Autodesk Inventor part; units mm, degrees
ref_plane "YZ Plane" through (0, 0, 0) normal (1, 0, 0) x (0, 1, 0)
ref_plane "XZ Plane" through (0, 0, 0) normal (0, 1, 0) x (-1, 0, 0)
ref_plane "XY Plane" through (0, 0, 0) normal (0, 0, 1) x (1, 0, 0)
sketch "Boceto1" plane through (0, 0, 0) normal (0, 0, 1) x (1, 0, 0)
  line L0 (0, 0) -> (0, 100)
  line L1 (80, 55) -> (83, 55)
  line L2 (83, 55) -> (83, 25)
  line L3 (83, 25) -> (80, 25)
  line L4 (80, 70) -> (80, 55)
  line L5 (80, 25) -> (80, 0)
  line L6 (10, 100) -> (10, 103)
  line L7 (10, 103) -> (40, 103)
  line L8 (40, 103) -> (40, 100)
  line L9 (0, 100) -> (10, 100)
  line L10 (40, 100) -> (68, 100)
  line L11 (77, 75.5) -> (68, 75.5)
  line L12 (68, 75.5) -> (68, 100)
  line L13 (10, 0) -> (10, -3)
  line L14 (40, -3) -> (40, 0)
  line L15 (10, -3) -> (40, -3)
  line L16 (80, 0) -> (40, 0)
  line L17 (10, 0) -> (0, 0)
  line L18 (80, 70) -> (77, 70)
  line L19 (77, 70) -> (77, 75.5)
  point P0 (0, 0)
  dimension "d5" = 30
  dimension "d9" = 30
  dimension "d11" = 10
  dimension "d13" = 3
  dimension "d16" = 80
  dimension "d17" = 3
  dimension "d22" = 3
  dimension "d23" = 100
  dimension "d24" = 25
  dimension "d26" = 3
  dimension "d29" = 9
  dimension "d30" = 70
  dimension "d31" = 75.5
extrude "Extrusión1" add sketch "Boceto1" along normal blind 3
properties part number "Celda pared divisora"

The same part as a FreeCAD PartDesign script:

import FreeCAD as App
import Part
import Sketcher

V = App.Vector
Q = App.Units.Quantity

doc = App.newDocument("Part")
params = doc.addObject("Spreadsheet::Sheet", "Params")
for row, (alias, value) in enumerate([
    ("sketch1_width", "10 mm"),
    ("sketch1_width2", "30 mm"),
    ("sketch1_width3", "3 mm"),
    ("sketch1_width4", "9 mm"),
    ("sketch1_height", "100 mm"),
    ("pad1_length", "3 mm"),
], start=1):
    params.set(f"A{row}", alias)
    params.set(f"B{row}", "=" + value)
    params.setAlias(f"B{row}", alias)

body = doc.addObject("PartDesign::Body", "Body")

sketch1 = body.newObject("Sketcher::SketchObject", "Sketch")
sketch1.AttachmentSupport = (doc.getObject("XY_Plane"), [""])
sketch1.MapMode = "FlatFace"
sketch1.addGeometry(Part.LineSegment(V(0, 100, 0), V(0, 0, 0)), False)
sketch1.addGeometry(Part.LineSegment(V(0, 0, 0), V(10, 0, 0)), False)
sketch1.addGeometry(Part.LineSegment(V(10, 0, 0), V(10, -3, 0)), False)
sketch1.addGeometry(Part.LineSegment(V(10, -3, 0), V(40, -3, 0)), False)
sketch1.addGeometry(Part.LineSegment(V(40, -3, 0), V(40, 0, 0)), False)
sketch1.addGeometry(Part.LineSegment(V(40, 0, 0), V(80, 0, 0)), False)
sketch1.addGeometry(Part.LineSegment(V(80, 0, 0), V(80, 25, 0)), False)
sketch1.addGeometry(Part.LineSegment(V(80, 25, 0), V(83, 25, 0)), False)
sketch1.addGeometry(Part.LineSegment(V(83, 25, 0), V(83, 55, 0)), False)
sketch1.addGeometry(Part.LineSegment(V(83, 55, 0), V(80, 55, 0)), False)
sketch1.addGeometry(Part.LineSegment(V(80, 55, 0), V(80, 70, 0)), False)
sketch1.addGeometry(Part.LineSegment(V(80, 70, 0), V(77, 70, 0)), False)
sketch1.addGeometry(Part.LineSegment(V(77, 70, 0), V(77, 75.5, 0)), False)
sketch1.addGeometry(Part.LineSegment(V(77, 75.5, 0), V(68, 75.5, 0)), False)
sketch1.addGeometry(Part.LineSegment(V(68, 75.5, 0), V(68, 100, 0)), False)
sketch1.addGeometry(Part.LineSegment(V(68, 100, 0), V(40, 100, 0)), False)
sketch1.addGeometry(Part.LineSegment(V(40, 100, 0), V(40, 103, 0)), False)
sketch1.addGeometry(Part.LineSegment(V(40, 103, 0), V(10, 103, 0)), False)
sketch1.addGeometry(Part.LineSegment(V(10, 103, 0), V(10, 100, 0)), False)
sketch1.addGeometry(Part.LineSegment(V(10, 100, 0), V(0, 100, 0)), False)
sketch1.addConstraint(Sketcher.Constraint("Coincident", 0, 2, 1, 1))
sketch1.addConstraint(Sketcher.Constraint("Coincident", 1, 2, 2, 1))
sketch1.addConstraint(Sketcher.Constraint("Coincident", 2, 2, 3, 1))
sketch1.addConstraint(Sketcher.Constraint("Coincident", 3, 2, 4, 1))
sketch1.addConstraint(Sketcher.Constraint("Coincident", 4, 2, 5, 1))
sketch1.addConstraint(Sketcher.Constraint("Coincident", 5, 2, 6, 1))
sketch1.addConstraint(Sketcher.Constraint("Coincident", 6, 2, 7, 1))
sketch1.addConstraint(Sketcher.Constraint("Coincident", 7, 2, 8, 1))
sketch1.addConstraint(Sketcher.Constraint("Coincident", 8, 2, 9, 1))
sketch1.addConstraint(Sketcher.Constraint("Coincident", 9, 2, 10, 1))
sketch1.addConstraint(Sketcher.Constraint("Coincident", 10, 2, 11, 1))
sketch1.addConstraint(Sketcher.Constraint("Coincident", 11, 2, 12, 1))
sketch1.addConstraint(Sketcher.Constraint("Coincident", 12, 2, 13, 1))
sketch1.addConstraint(Sketcher.Constraint("Coincident", 13, 2, 14, 1))
sketch1.addConstraint(Sketcher.Constraint("Coincident", 14, 2, 15, 1))
sketch1.addConstraint(Sketcher.Constraint("Coincident", 15, 2, 16, 1))
sketch1.addConstraint(Sketcher.Constraint("Coincident", 16, 2, 17, 1))
sketch1.addConstraint(Sketcher.Constraint("Coincident", 17, 2, 18, 1))
sketch1.addConstraint(Sketcher.Constraint("Coincident", 18, 2, 19, 1))
sketch1.addConstraint(Sketcher.Constraint("Coincident", 19, 2, 0, 1))
sketch1.addConstraint(Sketcher.Constraint("Vertical", 0))
sketch1.addConstraint(Sketcher.Constraint("Horizontal", 1))
sketch1.addConstraint(Sketcher.Constraint("Vertical", 2))
sketch1.addConstraint(Sketcher.Constraint("Horizontal", 3))
sketch1.addConstraint(Sketcher.Constraint("Vertical", 4))
sketch1.addConstraint(Sketcher.Constraint("Horizontal", 5))
sketch1.addConstraint(Sketcher.Constraint("Vertical", 6))
sketch1.addConstraint(Sketcher.Constraint("Horizontal", 7))
sketch1.addConstraint(Sketcher.Constraint("Vertical", 8))
sketch1.addConstraint(Sketcher.Constraint("Horizontal", 9))
sketch1.addConstraint(Sketcher.Constraint("Vertical", 10))
sketch1.addConstraint(Sketcher.Constraint("Horizontal", 11))
sketch1.addConstraint(Sketcher.Constraint("Vertical", 12))
sketch1.addConstraint(Sketcher.Constraint("Horizontal", 13))
sketch1.addConstraint(Sketcher.Constraint("Vertical", 14))
sketch1.addConstraint(Sketcher.Constraint("Horizontal", 15))
sketch1.addConstraint(Sketcher.Constraint("Vertical", 16))
sketch1.addConstraint(Sketcher.Constraint("Horizontal", 17))
sketch1.addConstraint(Sketcher.Constraint("Vertical", 18))
sketch1.addConstraint(Sketcher.Constraint("Horizontal", 19))
sketch1.addConstraint(Sketcher.Constraint("Coincident", 0, 2, -1, 1))
sketch1.addConstraint(Sketcher.Constraint("PointOnObject", 4, 2, -1))
sketch1.addConstraint(Sketcher.Constraint("Horizontal", 15, 2, 18, 2))
sketch1.addConstraint(Sketcher.Constraint("Vertical", 6, 2, 9, 2))
sketch1.addConstraint(Sketcher.Constraint("Vertical", 4, 2, 15, 2))
sketch1.addConstraint(Sketcher.Constraint("Vertical", 2, 2, 17, 2))
sketch1.addConstraint(Sketcher.Constraint("Equal", 9, 11))
sketch1.addConstraint(Sketcher.Constraint("Equal", 11, 2))
sketch1.addConstraint(Sketcher.Constraint("Equal", 17, 8))
sketch1.addConstraint(Sketcher.Constraint("Equal", 4, 16))
sketch1.addConstraint(Sketcher.Constraint("DistanceX", 1, 1, 1, 2, Q("10 mm")))
sketch1.addConstraint(Sketcher.Constraint("DistanceX", 3, 1, 3, 2, Q("30 mm")))
sketch1.addConstraint(Sketcher.Constraint("DistanceX", 7, 1, 7, 2, Q("3 mm")))
sketch1.addConstraint(Sketcher.Constraint("DistanceX", 13, 2, 13, 1, Q("9 mm")))
sketch1.addConstraint(Sketcher.Constraint("DistanceY", 0, 2, 0, 1, Q("100 mm")))
sketch1.addConstraint(Sketcher.Constraint("DistanceY", 6, 1, 6, 2, Q("25 mm")))
sketch1.addConstraint(Sketcher.Constraint("DistanceX", -1, 1, 5, 2, Q("80 mm")))
sketch1.addConstraint(Sketcher.Constraint("DistanceY", -1, 1, 10, 2, Q("70 mm")))
sketch1.addConstraint(Sketcher.Constraint("DistanceY", -1, 1, 12, 2, Q("75.5 mm")))
sketch1.setExpression("Constraints[50]", "Params.sketch1_width")
sketch1.setExpression("Constraints[51]", "Params.sketch1_width2")
sketch1.setExpression("Constraints[52]", "Params.sketch1_width3")
sketch1.setExpression("Constraints[53]", "Params.sketch1_width4")
sketch1.setExpression("Constraints[54]", "Params.sketch1_height")
pad1 = body.newObject("PartDesign::Pad", "Pad")
pad1.Profile = sketch1
pad1.setExpression("Length", "Params.pad1_length")

doc.recompute()
